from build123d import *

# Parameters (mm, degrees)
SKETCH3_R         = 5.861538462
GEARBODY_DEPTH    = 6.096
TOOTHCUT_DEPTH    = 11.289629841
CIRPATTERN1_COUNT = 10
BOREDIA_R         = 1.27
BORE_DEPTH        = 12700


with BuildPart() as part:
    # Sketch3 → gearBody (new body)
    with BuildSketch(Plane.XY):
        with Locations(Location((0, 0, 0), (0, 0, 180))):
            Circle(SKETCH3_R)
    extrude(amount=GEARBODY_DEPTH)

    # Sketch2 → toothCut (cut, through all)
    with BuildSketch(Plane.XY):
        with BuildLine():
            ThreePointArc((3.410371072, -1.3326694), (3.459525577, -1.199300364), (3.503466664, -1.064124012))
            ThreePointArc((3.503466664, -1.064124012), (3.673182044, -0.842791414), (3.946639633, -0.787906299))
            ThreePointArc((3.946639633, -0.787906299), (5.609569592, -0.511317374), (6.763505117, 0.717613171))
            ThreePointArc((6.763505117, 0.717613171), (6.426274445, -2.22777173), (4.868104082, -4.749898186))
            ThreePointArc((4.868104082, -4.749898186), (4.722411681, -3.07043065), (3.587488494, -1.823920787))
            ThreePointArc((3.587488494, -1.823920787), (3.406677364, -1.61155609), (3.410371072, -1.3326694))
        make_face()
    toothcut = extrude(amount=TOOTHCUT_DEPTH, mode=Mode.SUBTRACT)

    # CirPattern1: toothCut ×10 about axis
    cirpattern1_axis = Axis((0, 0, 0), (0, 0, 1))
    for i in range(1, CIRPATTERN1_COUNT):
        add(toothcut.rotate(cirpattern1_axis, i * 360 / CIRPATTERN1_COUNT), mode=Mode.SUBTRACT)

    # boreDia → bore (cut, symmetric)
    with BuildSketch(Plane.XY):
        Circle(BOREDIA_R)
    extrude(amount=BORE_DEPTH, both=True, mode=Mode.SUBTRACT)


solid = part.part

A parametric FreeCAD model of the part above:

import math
import FreeCAD as App
import Part
import Sketcher

V = App.Vector
Q = App.Units.Quantity

doc = App.newDocument("Part")
body = doc.addObject("PartDesign::Body", "Body")

# Sketch on XY plane
sketch1 = body.newObject("Sketcher::SketchObject", "Sketch")
sketch1.AttachmentSupport = (doc.getObject("XY_Plane"), [""])
sketch1.MapMode = "FlatFace"
sketch1.addGeometry(Part.Circle(V(0, 0, 0), V(0, 0, 1), 6), False)
sketch1.addConstraint(Sketcher.Constraint("Coincident", 0, 3, -1, 1))
sketch1.addConstraint(Sketcher.Constraint("Diameter", 0, Q("11.723077 mm")))
pad1 = body.newObject("PartDesign::Pad", "Pad")
pad1.Profile = sketch1
pad1.Length = Q("0.24 in")

# Sketch on XY plane
sketch2 = body.newObject("Sketcher::SketchObject", "Sketch001")
sketch2.AttachmentSupport = (doc.getObject("XY_Plane"), [""])
sketch2.MapMode = "FlatFace"
sketch2.addGeometry(Part.ArcOfCircle(Part.Circle(V(0, 0, 0), V(0, 0, 1), 3.66), math.radians(-21.34), math.radians(-16.9)), False)
sketch2.addGeometry(Part.ArcOfCircle(Part.Circle(V(3.78, -1.48, 0), V(0, 0, 1), 0.4), math.radians(159), math.radians(241)), False)
sketch2.addGeometry(Part.ArcOfCircle(Part.Circle(V(2.31, -4.13, 0), V(0, 0, 1), 2.63), math.radians(-14), math.radians(61)), False)
sketch2.addGeometry(Part.ArcOfCircle(Part.Circle(V(0, 0, 0), V(0, 0, 1), 6.8), math.radians(-44), math.radians(6)), False)
sketch2.addGeometry(Part.ArcOfCircle(Part.Circle(V(4.37, 1.81, 0), V(0, 0, 1), 2.63), math.radians(-99), math.radians(-25)), False)
sketch2.addGeometry(Part.ArcOfCircle(Part.Circle(V(3.88, -1.18, 0), V(0, 0, 1), 0.4), math.radians(81), math.radians(163)), False)
sketch2.addConstraint(Sketcher.Constraint("Tangent", 0, 1, 1, 1))
sketch2.addConstraint(Sketcher.Constraint("Tangent", 1, 2, 2, 2))
sketch2.addConstraint(Sketcher.Constraint("Coincident", 2, 1, 3, 1))
sketch2.addConstraint(Sketcher.Constraint("Coincident", 3, 2, 4, 2))
sketch2.addConstraint(Sketcher.Constraint("Tangent", 4, 1, 5, 1))
sketch2.addConstraint(Sketcher.Constraint("Tangent", 5, 2, 0, 2))
sketch2.addConstraint(Sketcher.Constraint("Coincident", 0, 3, -1, 1))
sketch2.addConstraint(Sketcher.Constraint("Coincident", 3, 3, -1, 1))
sketch2.addConstraint(Sketcher.Constraint("Equal", 2, 4))
sketch2.addConstraint(Sketcher.Constraint("Equal", 1, 5))
sketch2.addConstraint(Sketcher.Constraint("Radius", 1, Q("0.396631 mm")))
sketch2.addConstraint(Sketcher.Constraint("Radius", 2, Q("2.631749 mm")))
sketch2.addConstraint(Sketcher.Constraint("Radius", 3, Q("6.801468 mm")))
sketch2.addConstraint(Sketcher.Constraint("Radius", 0, Q("3.661507 mm")))
sketch2.addConstraint(Sketcher.Constraint("DistanceY", 2, 1, -1, 1, Q("4.749898 mm")))
sketch2.addConstraint(Sketcher.Constraint("DistanceY", 2, 3, 1, 3, Q("2.648601 mm")))
sketch2.addConstraint(Sketcher.Constraint("DistanceY", -1, 1, 4, 3, Q("1.809721 mm")))
sketch2.addConstraint(Sketcher.Constraint("DistanceX", -1, 1, 4, 1, Q("3.94664 mm")))
pocket1 = body.newObject("PartDesign::Pocket", "Pocket")
pocket1.Profile = sketch2
pocket1.Type = "ThroughAll"
pocket1.Reversed = True
doc.recompute()

polarpattern = body.newObject("PartDesign::PolarPattern", "PolarPattern")
polarpattern.Originals = [pocket1]
polarpattern.Axis = (doc.getObject("Z_Axis"), [""])
polarpattern.Angle = 360
polarpattern.Occurrences = 10
body.Tip = polarpattern

# Sketch on XY plane
sketch3 = body.newObject("Sketcher::SketchObject", "Sketch002")
sketch3.AttachmentSupport = (doc.getObject("XY_Plane"), [""])
sketch3.MapMode = "FlatFace"
sketch3.addGeometry(Part.Circle(V(0, 0, 0), V(0, 0, 1), 1.3), False)
sketch3.addConstraint(Sketcher.Constraint("Coincident", 0, 3, -1, 1))
sketch3.addConstraint(Sketcher.Constraint("Diameter", 0, Q("0.1 in")))
pocket2 = body.newObject("PartDesign::Pocket", "Pocket001")
pocket2.Profile = sketch3
pocket2.Length = Q("1000 in")
pocket2.Midplane = True

doc.recompute()
